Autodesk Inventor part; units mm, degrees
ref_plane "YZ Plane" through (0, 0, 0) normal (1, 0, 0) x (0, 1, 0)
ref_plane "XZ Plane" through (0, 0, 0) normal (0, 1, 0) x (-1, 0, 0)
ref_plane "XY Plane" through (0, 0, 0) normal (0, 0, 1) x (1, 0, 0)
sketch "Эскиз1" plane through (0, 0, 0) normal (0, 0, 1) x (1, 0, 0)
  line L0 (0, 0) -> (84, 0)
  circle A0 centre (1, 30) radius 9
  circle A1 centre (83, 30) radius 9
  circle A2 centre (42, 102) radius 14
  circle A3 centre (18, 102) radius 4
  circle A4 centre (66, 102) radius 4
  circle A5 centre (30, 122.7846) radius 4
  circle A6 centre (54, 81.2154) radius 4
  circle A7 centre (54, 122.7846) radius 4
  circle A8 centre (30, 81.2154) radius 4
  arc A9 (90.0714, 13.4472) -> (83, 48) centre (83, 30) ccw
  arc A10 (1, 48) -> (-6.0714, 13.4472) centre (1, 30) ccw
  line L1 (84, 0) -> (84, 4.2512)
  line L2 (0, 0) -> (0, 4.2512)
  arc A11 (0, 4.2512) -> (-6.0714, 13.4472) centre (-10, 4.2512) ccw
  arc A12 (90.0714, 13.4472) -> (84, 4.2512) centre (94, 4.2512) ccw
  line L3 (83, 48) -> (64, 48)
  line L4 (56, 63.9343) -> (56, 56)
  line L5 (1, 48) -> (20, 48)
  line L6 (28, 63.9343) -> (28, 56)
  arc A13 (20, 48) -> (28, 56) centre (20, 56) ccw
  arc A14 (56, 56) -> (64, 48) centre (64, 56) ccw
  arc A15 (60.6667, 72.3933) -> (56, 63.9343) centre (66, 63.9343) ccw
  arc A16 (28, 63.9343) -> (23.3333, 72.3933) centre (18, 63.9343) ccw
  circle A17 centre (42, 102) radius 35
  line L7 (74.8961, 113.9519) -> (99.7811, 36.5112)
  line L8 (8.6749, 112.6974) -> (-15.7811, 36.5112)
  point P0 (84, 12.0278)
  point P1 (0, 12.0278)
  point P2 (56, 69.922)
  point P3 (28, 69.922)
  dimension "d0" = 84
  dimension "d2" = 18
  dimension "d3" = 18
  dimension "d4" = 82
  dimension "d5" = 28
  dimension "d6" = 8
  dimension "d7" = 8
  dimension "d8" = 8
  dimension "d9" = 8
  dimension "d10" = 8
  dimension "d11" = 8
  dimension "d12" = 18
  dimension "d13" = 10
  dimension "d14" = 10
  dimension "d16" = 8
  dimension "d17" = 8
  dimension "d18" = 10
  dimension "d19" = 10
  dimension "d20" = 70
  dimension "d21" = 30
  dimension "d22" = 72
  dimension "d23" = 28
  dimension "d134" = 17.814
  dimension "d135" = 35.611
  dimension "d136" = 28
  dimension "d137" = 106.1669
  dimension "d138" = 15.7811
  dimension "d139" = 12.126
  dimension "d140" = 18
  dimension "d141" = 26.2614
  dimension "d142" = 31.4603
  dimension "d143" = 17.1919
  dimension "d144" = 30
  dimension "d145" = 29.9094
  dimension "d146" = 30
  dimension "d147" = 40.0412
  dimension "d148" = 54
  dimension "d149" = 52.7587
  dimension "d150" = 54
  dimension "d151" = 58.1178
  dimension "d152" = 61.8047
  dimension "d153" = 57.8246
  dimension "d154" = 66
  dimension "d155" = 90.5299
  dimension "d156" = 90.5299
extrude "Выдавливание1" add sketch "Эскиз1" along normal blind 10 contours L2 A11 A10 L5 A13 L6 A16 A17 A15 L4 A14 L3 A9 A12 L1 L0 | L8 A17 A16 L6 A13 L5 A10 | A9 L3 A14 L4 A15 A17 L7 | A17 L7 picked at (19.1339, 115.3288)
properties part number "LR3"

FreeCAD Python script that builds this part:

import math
import FreeCAD as App
import Part
import Sketcher

V = App.Vector
Q = App.Units.Quantity

doc = App.newDocument("Part")
body = doc.addObject("PartDesign::Body", "Body")

# Sketch on XY plane
sketch1 = body.newObject("Sketcher::SketchObject", "Sketch")
sketch1.AttachmentSupport = (doc.getObject("XY_Plane"), [""])
sketch1.MapMode = "FlatFace"
sketch1.addGeometry([
    Part.LineSegment(V(0, 4.2512, 0), V(0, 0, 0)),  # 0
    Part.LineSegment(V(0, 0, 0), V(84, 0, 0)),  # 1
    Part.LineSegment(V(84, 0, 0), V(84, 4.2512, 0)),  # 2
    Part.ArcOfCircle(Part.Circle(V(94, 4.2512, 0), V(0, 0, 1), 10.000016), math.radians(113.132536), math.radians(180)),  # 3
    Part.ArcOfCircle(Part.Circle(V(83, 30, 0), V(0, 0, 1), 17.999997), math.radians(-66.867698), math.radians(21.206648)),  # 4
    Part.LineSegment(V(99.7811, 36.5112, 0), V(74.8961, 113.9519, 0)),  # 5
    Part.ArcOfCircle(Part.Circle(V(42, 102, 0), V(0, 0, 1), 35), math.radians(19.967232), math.radians(162.203303)),  # 6
    Part.LineSegment(V(8.6749, 112.6974, 0), V(-15.7811, 36.5112, 0)),  # 7
    Part.ArcOfCircle(Part.Circle(V(1, 30, 0), V(0, 0, 1), 18), math.radians(158.793352), math.radians(246.867698)),  # 8
    Part.ArcOfCircle(Part.Circle(V(-10, 4.2512, 0), V(0, 0, 1), 10), math.radians(0), math.radians(66.867464)),  # 9
    Part.Circle(V(1, 30, 0), V(0, 0, 1), 9),  # 10
    Part.Circle(V(83, 30, 0), V(0, 0, 1), 9),  # 11
    Part.Circle(V(54, 122.7846, 0), V(0, 0, 1), 4),  # 12
    Part.Circle(V(66, 102, 0), V(0, 0, 1), 4),  # 13
    Part.Circle(V(30, 81.2154, 0), V(0, 0, 1), 4),  # 14
    Part.Circle(V(18, 102, 0), V(0, 0, 1), 4),  # 15
    Part.Circle(V(30, 122.7846, 0), V(0, 0, 1), 4),  # 16
    Part.Circle(V(54, 81.2154, 0), V(0, 0, 1), 4),  # 17
    Part.Circle(V(42, 102, 0), V(0, 0, 1), 14),  # 18
], False)
sketch1.addConstraint([
    Sketcher.Constraint("Coincident", 0, 2, 1, 1),
    Sketcher.Constraint("Coincident", 1, 2, 2, 1),
    Sketcher.Constraint("Tangent", 2, 2, 3, 2),
    Sketcher.Constraint("Tangent", 3, 1, 4, 1),
    Sketcher.Constraint("Coincident", 4, 2, 5, 1),
    Sketcher.Constraint("Coincident", 5, 2, 6, 1),
    Sketcher.Constraint("Tangent", 6, 2, 7, 1),
    Sketcher.Constraint("Coincident", 7, 2, 8, 1),
    Sketcher.Constraint("Tangent", 8, 2, 9, 2),
    Sketcher.Constraint("Tangent", 9, 1, 0, 1),
    Sketcher.Constraint("Vertical", 0),
    Sketcher.Constraint("Horizontal", 1),
    Sketcher.Constraint("Vertical", 2),
    Sketcher.Constraint("Coincident", 0, 2, -1, 1),
    Sketcher.Constraint("Coincident", 10, 3, 8, 3),
    Sketcher.Constraint("Coincident", 11, 3, 4, 3),
    Sketcher.Constraint("Coincident", 18, 3, 6, 3),
    Sketcher.Constraint("Equal", 4, 8),
    Sketcher.Constraint("Equal", 3, 9),
    Sketcher.Constraint("Equal", 10, 11),
    Sketcher.Constraint("Equal", 12, 13),
    Sketcher.Constraint("Equal", 13, 14),
    Sketcher.Constraint("Equal", 14, 15),
    Sketcher.Constraint("Equal", 15, 16),
    Sketcher.Constraint("Equal", 16, 17),
    Sketcher.Constraint("Horizontal", 4, 3, 8, 3),
    Sketcher.Constraint("Horizontal", 3, 3, 9, 3),
    Sketcher.Constraint("Horizontal", 6, 3, 13, 3),
    Sketcher.Constraint("Horizontal", 13, 3, 15, 3),
    Sketcher.Constraint("Horizontal", 12, 3, 16, 3),
    Sketcher.Constraint("Horizontal", 14, 3, 17, 3),
    Sketcher.Constraint("Horizontal", 4, 2, 7, 2),
    Sketcher.Constraint("Vertical", 14, 3, 16, 3),
    Sketcher.Constraint("Vertical", 12, 3, 17, 3),
    Sketcher.Constraint("Diameter", 10, Q("18 mm")),
    Sketcher.Constraint("Diameter", 12, Q("8 mm")),
    Sketcher.Constraint("Diameter", 18, Q("28 mm")),
    Sketcher.Constraint("Radius", 3, Q("10 mm")),
    Sketcher.Constraint("Radius", 4, Q("18 mm")),
    Sketcher.Constraint("Radius", 6, Q("35 mm")),
    Sketcher.Constraint("DistanceX", 1, 1, 1, 2, Q("84 mm")),
    Sketcher.Constraint("DistanceY", -1, 1, 4, 3, Q("30 mm")),
    Sketcher.Constraint("DistanceX", -1, 1, 12, 3, Q("54 mm")),
    Sketcher.Constraint("DistanceX", -1, 1, 13, 3, Q("66 mm")),
    Sketcher.Constraint("DistanceX", -1, 1, 14, 3, Q("30 mm")),
    Sketcher.Constraint("DistanceX", -1, 1, 15, 3, Q("18 mm")),
    Sketcher.Constraint("DistanceY", 4, 3, 6, 3, Q("72 mm")),
    Sketcher.Constraint("DistanceX", 8, 3, 4, 3, Q("82 mm")),
    Sketcher.Constraint("DistanceX", -1, 1, 6, 3, Q("42 mm")),
    Sketcher.Constraint("DistanceX", 7, 2, -1, 1, Q("15.781 mm")),
    Sketcher.Constraint("DistanceX", -1, 1, 5, 2, Q("74.896 mm")),
    Sketcher.Constraint("DistanceY", 14, 3, 6, 2, Q("31.482 mm")),
    Sketcher.Constraint("DistanceY", -1, 1, 12, 3, Q("122.7846 mm")),
])
pad1 = body.newObject("PartDesign::Pad", "Pad")
pad1.Profile = sketch1
pad1.Length = 10

doc.recompute()
